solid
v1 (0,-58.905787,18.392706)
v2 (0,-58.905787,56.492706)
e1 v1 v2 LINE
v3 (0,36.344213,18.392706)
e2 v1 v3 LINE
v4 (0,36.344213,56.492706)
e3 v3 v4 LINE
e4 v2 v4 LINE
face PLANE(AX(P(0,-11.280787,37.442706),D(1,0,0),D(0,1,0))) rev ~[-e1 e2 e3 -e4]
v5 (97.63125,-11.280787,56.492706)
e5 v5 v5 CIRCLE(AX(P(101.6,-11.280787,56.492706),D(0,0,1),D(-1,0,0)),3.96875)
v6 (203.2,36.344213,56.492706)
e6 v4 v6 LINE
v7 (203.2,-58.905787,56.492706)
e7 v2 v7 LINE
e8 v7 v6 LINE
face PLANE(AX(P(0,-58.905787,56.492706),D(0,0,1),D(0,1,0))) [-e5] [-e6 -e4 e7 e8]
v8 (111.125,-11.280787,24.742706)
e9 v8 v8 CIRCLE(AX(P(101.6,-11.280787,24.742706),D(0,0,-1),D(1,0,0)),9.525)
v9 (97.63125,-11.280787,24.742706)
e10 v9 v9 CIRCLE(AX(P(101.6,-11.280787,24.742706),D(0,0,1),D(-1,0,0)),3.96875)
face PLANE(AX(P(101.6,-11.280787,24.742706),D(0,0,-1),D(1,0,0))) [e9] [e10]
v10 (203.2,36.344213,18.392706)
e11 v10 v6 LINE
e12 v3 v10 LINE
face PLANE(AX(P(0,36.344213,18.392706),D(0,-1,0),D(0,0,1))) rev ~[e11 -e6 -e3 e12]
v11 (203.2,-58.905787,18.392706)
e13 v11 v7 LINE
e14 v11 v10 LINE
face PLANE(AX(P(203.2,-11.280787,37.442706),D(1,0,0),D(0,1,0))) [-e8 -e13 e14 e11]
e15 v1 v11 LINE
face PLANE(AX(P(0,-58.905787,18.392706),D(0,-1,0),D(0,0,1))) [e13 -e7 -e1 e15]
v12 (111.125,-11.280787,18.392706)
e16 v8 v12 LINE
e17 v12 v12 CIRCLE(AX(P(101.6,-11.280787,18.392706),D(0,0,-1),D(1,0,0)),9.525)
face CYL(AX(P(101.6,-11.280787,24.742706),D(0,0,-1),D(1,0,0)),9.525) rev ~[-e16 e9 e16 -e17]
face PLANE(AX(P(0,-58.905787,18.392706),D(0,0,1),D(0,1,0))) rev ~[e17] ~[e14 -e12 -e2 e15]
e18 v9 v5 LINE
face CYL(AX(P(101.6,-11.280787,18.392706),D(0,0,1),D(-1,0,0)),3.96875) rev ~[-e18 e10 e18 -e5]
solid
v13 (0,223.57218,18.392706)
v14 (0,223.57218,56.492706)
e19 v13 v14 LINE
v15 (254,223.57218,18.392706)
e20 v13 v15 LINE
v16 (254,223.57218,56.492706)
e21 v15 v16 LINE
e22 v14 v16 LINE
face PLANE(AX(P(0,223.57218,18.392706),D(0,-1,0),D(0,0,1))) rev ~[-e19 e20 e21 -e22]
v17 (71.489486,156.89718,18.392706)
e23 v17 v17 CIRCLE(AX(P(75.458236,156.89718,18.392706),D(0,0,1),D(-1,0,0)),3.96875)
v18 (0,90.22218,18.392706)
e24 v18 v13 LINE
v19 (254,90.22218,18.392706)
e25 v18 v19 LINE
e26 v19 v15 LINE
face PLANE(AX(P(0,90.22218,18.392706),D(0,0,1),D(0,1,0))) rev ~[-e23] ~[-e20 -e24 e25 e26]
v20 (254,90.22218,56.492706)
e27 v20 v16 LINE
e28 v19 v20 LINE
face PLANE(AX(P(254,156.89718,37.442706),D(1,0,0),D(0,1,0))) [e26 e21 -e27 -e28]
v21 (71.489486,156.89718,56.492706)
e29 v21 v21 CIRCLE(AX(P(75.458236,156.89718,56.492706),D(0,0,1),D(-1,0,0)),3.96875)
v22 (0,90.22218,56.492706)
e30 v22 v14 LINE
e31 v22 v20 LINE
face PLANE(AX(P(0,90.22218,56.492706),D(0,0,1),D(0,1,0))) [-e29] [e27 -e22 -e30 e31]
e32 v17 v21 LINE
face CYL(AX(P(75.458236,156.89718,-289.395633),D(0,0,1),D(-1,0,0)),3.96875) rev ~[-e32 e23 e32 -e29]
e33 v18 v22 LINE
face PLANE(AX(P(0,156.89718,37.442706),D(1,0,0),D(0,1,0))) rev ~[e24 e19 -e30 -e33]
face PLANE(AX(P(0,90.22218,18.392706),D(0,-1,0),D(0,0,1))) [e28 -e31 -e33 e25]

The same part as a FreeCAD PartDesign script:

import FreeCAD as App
import Part
import Sketcher

V = App.Vector
Q = App.Units.Quantity

doc = App.newDocument("Part")
params = doc.addObject("Spreadsheet::Sheet", "Params")
for row, (alias, value) in enumerate([
    ("sketch1_height", "1.5 in"),
    ("sketch1_width", "3.75 in"),
    ("pad1_length", "8 in"),
    ("sketch2_diameter", "0.3125 in"),
    ("hole_diameter", "0.3125 in"),
    ("hole_cbore_diameter", "0.75 in"),
    ("hole_cbore_depth", "0.25 in"),
    ("sketch3_height", "1.5 in"),
    ("sketch3_width", "5.25 in"),
    ("pad2_length", "10 in"),
    ("sketch4_diameter", "0.3125 in"),
    ("hole2_diameter", "0.3125 in"),
], start=1):
    params.set(f"A{row}", alias)
    params.set(f"B{row}", "=" + value)
    params.setAlias(f"B{row}", alias)

body = doc.addObject("PartDesign::Body", "Body")

sketch1 = body.newObject("Sketcher::SketchObject", "Sketch")
sketch1.AttachmentSupport = (doc.getObject("YZ_Plane"), [""])
sketch1.MapMode = "FlatFace"
sketch1.addGeometry([
    Part.LineSegment(V(-59, 56, 0), V(-59, 18, 0)),
    Part.LineSegment(V(-59, 18, 0), V(36, 18, 0)),
    Part.LineSegment(V(36, 18, 0), V(36, 56, 0)),
    Part.LineSegment(V(36, 56, 0), V(-59, 56, 0)),
], False)
sketch1.addConstraint([
    Sketcher.Constraint("Coincident", 0, 2, 1, 1),
    Sketcher.Constraint("Coincident", 1, 2, 2, 1),
    Sketcher.Constraint("Coincident", 2, 2, 3, 1),
    Sketcher.Constraint("Coincident", 3, 2, 0, 1),
    Sketcher.Constraint("Vertical", 0),
    Sketcher.Constraint("Horizontal", 1),
    Sketcher.Constraint("Vertical", 2),
    Sketcher.Constraint("Horizontal", 3),
    Sketcher.Constraint("DistanceY", 0, 2, 0, 1, Q("1.5 in")),
    Sketcher.Constraint("DistanceX", 1, 1, 1, 2, Q("3.75 in")),
    Sketcher.Constraint("DistanceX", 0, 2, -1, 1, 58.905787),
    Sketcher.Constraint("DistanceY", -1, 1, 0, 2, 18.392706),
])
sketch1.setExpression("Constraints[8]", "Params.sketch1_height")
sketch1.setExpression("Constraints[9]", "Params.sketch1_width")
pad1 = body.newObject("PartDesign::Pad", "Pad")
pad1.Profile = sketch1
pad1.setExpression("Length", "Params.pad1_length")

sketch2 = body.newObject("Sketcher::SketchObject", "Sketch001")
sketch2.AttachmentSupport = (doc.getObject("XY_Plane"), [""])
sketch2.MapMode = "FlatFace"
sketch2.AttachmentOffset = App.Placement(V(0, 0, 18.392706), App.Rotation())
sketch2.addGeometry(Part.Circle(V(101.6, -11.3, 0), V(0, 0, 1), 4), False)
sketch2.addConstraint([
    Sketcher.Constraint("Diameter", 0, Q("0.3125 in")),
    Sketcher.Constraint("DistanceX", -1, 1, 0, 3, Q("4 in")),
    Sketcher.Constraint("DistanceY", 0, 3, -1, 1, 11.280787),
])
sketch2.setExpression("Constraints[0]", "Params.sketch2_diameter")
doc.recompute()
hole = body.newObject("PartDesign::Hole", "Hole")
hole.Profile = sketch2
hole.ThreadType = "None"
hole.setExpression("Diameter", "Params.hole_diameter")
hole.DepthType = "ThroughAll"
hole.HoleCutType = "Counterbore"
hole.setExpression("HoleCutDiameter", "Params.hole_cbore_diameter")
hole.setExpression("HoleCutDepth", "Params.hole_cbore_depth")
hole.Reversed = True
body2 = doc.addObject("PartDesign::Body", "Body001")

sketch3 = body2.newObject("Sketcher::SketchObject", "Sketch002")
sketch3.AttachmentSupport = (doc.getObject("YZ_Plane001"), [""])
sketch3.MapMode = "FlatFace"
sketch3.addGeometry([
    Part.LineSegment(V(90, 56, 0), V(90, 18, 0)),
    Part.LineSegment(V(90, 18, 0), V(224, 18, 0)),
    Part.LineSegment(V(224, 18, 0), V(224, 56, 0)),
    Part.LineSegment(V(224, 56, 0), V(90, 56, 0)),
], False)
sketch3.addConstraint([
    Sketcher.Constraint("Coincident", 0, 2, 1, 1),
    Sketcher.Constraint("Coincident", 1, 2, 2, 1),
    Sketcher.Constraint("Coincident", 2, 2, 3, 1),
    Sketcher.Constraint("Coincident", 3, 2, 0, 1),
    Sketcher.Constraint("Vertical", 0),
    Sketcher.Constraint("Horizontal", 1),
    Sketcher.Constraint("Vertical", 2),
    Sketcher.Constraint("Horizontal", 3),
    Sketcher.Constraint("DistanceY", 0, 2, 0, 1, Q("1.5 in")),
    Sketcher.Constraint("DistanceX", 1, 1, 1, 2, Q("5.25 in")),
    Sketcher.Constraint("DistanceX", -1, 1, 0, 2, 90.22218),
    Sketcher.Constraint("DistanceY", -1, 1, 0, 2, 18.392706),
])
sketch3.setExpression("Constraints[8]", "Params.sketch3_height")
sketch3.setExpression("Constraints[9]", "Params.sketch3_width")
pad2 = body2.newObject("PartDesign::Pad", "Pad001")
pad2.Profile = sketch3
pad2.setExpression("Length", "Params.pad2_length")

sketch4 = body2.newObject("Sketcher::SketchObject", "Sketch003")
sketch4.AttachmentSupport = (doc.getObject("XY_Plane001"), [""])
sketch4.MapMode = "FlatFace"
sketch4.addGeometry(Part.Circle(V(75.5, 156.9, 0), V(0, 0, 1), 4), False)
sketch4.addConstraint([
    Sketcher.Constraint("Diameter", 0, Q("0.3125 in")),
    Sketcher.Constraint("DistanceY", -1, 1, 0, 3, 156.89718),
    Sketcher.Constraint("DistanceX", -1, 1, 0, 3, 75.458236),
])
sketch4.setExpression("Constraints[0]", "Params.sketch4_diameter")
doc.recompute()
hole2 = body2.newObject("PartDesign::Hole", "Hole001")
hole2.Profile = sketch4
hole2.ThreadType = "None"
hole2.setExpression("Diameter", "Params.hole2_diameter")
hole2.DepthType = "ThroughAll"
hole2.Reversed = True

doc.recompute()
